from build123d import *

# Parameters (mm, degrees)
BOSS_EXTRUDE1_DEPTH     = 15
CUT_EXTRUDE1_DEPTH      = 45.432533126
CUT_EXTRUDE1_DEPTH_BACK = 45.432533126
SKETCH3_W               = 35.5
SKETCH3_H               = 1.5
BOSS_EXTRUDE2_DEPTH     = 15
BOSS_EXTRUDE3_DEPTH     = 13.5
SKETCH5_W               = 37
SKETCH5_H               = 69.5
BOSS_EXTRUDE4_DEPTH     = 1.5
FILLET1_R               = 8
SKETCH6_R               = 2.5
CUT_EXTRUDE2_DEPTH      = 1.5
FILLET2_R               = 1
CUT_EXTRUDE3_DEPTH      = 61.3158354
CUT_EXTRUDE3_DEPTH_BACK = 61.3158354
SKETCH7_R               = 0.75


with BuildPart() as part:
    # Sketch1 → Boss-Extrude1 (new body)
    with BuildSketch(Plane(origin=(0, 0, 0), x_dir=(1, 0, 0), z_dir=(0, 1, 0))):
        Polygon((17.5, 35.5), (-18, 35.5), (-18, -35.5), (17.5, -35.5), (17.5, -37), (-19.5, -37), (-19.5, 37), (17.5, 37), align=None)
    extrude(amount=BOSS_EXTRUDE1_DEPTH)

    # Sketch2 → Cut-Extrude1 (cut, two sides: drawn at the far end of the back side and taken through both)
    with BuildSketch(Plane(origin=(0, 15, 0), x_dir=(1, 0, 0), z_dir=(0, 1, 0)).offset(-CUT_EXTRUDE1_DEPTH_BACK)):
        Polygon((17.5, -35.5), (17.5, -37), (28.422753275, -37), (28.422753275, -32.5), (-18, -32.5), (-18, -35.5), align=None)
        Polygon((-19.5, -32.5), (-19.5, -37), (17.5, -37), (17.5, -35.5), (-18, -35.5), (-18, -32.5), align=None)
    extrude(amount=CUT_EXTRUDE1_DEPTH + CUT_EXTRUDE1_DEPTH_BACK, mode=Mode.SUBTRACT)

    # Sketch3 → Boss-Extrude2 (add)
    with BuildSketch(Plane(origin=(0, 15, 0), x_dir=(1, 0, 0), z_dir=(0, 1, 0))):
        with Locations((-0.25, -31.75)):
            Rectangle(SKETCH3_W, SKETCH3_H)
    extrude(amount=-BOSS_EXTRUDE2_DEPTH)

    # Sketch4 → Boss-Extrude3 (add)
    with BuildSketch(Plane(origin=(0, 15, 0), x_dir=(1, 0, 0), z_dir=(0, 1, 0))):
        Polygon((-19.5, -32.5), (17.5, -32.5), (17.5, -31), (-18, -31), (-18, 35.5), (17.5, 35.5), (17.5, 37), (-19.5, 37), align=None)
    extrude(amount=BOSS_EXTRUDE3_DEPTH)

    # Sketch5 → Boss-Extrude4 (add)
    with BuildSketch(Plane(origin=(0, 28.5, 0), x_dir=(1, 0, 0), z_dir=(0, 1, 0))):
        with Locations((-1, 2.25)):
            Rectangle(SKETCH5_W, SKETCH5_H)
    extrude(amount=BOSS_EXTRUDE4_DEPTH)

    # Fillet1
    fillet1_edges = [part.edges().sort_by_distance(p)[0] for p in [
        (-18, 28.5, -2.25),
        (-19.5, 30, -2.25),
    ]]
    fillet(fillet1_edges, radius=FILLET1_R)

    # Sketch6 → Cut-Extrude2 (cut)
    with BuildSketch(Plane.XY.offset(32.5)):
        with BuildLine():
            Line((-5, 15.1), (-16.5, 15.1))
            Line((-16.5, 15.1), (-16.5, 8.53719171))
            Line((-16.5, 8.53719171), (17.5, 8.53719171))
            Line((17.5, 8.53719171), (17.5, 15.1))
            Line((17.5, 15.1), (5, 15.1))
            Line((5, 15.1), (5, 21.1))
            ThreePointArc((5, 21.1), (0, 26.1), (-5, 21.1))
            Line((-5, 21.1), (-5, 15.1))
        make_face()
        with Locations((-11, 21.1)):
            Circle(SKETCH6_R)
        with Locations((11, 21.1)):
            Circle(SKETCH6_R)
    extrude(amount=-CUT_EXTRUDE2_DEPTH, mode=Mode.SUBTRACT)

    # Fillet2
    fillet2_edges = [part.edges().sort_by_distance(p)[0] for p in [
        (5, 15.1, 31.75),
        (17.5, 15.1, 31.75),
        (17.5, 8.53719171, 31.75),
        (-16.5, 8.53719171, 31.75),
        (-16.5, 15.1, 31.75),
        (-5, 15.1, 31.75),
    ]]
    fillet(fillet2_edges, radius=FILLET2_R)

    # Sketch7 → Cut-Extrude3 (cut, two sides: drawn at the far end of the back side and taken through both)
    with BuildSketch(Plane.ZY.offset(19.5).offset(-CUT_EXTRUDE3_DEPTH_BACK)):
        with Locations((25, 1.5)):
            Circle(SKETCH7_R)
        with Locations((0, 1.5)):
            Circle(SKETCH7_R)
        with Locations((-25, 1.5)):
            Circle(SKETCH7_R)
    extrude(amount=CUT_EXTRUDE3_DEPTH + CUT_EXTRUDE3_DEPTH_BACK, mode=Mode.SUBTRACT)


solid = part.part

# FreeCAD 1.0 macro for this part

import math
import FreeCAD as App
import Part
import Sketcher
Q = App.Units.Quantity


def edges_at(feature, points):
    """Names of the edges that pass closest to the given points."""
    edges = feature.Shape.Edges
    near = lambda p: min(range(len(edges)), key=lambda i: edges[i].distToShape(Part.Vertex(*p))[0])
    return sorted({f"Edge{near(p) + 1}" for p in points})

doc = App.newDocument("Part")
params = doc.addObject("Spreadsheet::Sheet", "Params")
for row, (alias, value) in enumerate([
    ("sketch1_width", "37 mm"),
    ("sketch1_height", "74 mm"),
    ("sketch1_height2", "71 mm"),
    ("sketch1_width2", "35.5 mm"),
    ("pad1_length", "15 mm"),
    ("sketch2_height", "4.5 mm"),
    ("sketch3_width", "35.5 mm"),
    ("sketch3_height", "1.5 mm"),
    ("pad2_length", "15 mm"),
    ("sketch4_width", "37 mm"),
    ("sketch4_width2", "35.5 mm"),
    ("sketch4_height", "1.5 mm"),
    ("sketch4_height2", "66.5 mm"),
    ("pad3_length", "13.5 mm"),
    ("sketch5_width", "37 mm"),
    ("sketch5_height", "69.5 mm"),
    ("pad4_length", "1.5 mm"),
    ("fillet_radius", "8 mm"),
    ("sketch6_diameter", "5 mm"),
    ("sketch6_radius", "5 mm"),
    ("sketch6_width", "34 mm"),
    ("sketch6_height", "6 mm"),
    ("sketch6_width2", "11.5 mm"),
    ("pocket2_length", "1.5 mm"),
    ("fillet2_radius", "1 mm"),
    ("sketch7_diameter", "1.5 mm"),
], start=1):
    params.set(f"A{row}", alias)
    params.set(f"B{row}", "=" + value)
    params.setAlias(f"B{row}", alias)

body = doc.addObject("PartDesign::Body", "Body")

# Sketch on XZ plane
sketch1 = doc.addObject("Sketcher::SketchObject", "Sketch")
body.addObject(sketch1)
sketch1.AttachmentSupport = (doc.XZ_Plane, [""])
sketch1.MapMode = "FlatFace"
sketch1.addGeometry(Part.LineSegment(App.Vector(-18, -35.5, 0), App.Vector(17.5, -35.5, 0)), False)
sketch1.addGeometry(Part.LineSegment(App.Vector(17.5, -35.5, 0), App.Vector(17.5, -37, 0)), False)
sketch1.addGeometry(Part.LineSegment(App.Vector(17.5, -37, 0), App.Vector(-19.5, -37, 0)), False)
sketch1.addGeometry(Part.LineSegment(App.Vector(-19.5, -37, 0), App.Vector(-19.5, 37, 0)), False)
sketch1.addGeometry(Part.LineSegment(App.Vector(-19.5, 37, 0), App.Vector(17.5, 37, 0)), False)
sketch1.addGeometry(Part.LineSegment(App.Vector(17.5, 37, 0), App.Vector(17.5, 35.5, 0)), False)
sketch1.addGeometry(Part.LineSegment(App.Vector(17.5, 35.5, 0), App.Vector(-18, 35.5, 0)), False)
sketch1.addGeometry(Part.LineSegment(App.Vector(-18, 35.5, 0), App.Vector(-18, -35.5, 0)), False)
sketch1.addConstraint(Sketcher.Constraint("Coincident", 0, 2, 1, 1))
sketch1.addConstraint(Sketcher.Constraint("Coincident", 1, 2, 2, 1))
sketch1.addConstraint(Sketcher.Constraint("Coincident", 2, 2, 3, 1))
sketch1.addConstraint(Sketcher.Constraint("Coincident", 3, 2, 4, 1))
sketch1.addConstraint(Sketcher.Constraint("Coincident", 4, 2, 5, 1))
sketch1.addConstraint(Sketcher.Constraint("Coincident", 5, 2, 6, 1))
sketch1.addConstraint(Sketcher.Constraint("Coincident", 6, 2, 7, 1))
sketch1.addConstraint(Sketcher.Constraint("Coincident", 7, 2, 0, 1))
sketch1.addConstraint(Sketcher.Constraint("Horizontal", 0))
sketch1.addConstraint(Sketcher.Constraint("Vertical", 1))
sketch1.addConstraint(Sketcher.Constraint("Horizontal", 2))
sketch1.addConstraint(Sketcher.Constraint("Vertical", 3))
sketch1.addConstraint(Sketcher.Constraint("Horizontal", 4))
sketch1.addConstraint(Sketcher.Constraint("Vertical", 5))
sketch1.addConstraint(Sketcher.Constraint("Horizontal", 6))
sketch1.addConstraint(Sketcher.Constraint("Vertical", 7))
sketch1.addConstraint(Sketcher.Constraint("Symmetric", 1, 2, 4, 2, -1))
sketch1.addConstraint(Sketcher.Constraint("Equal", 1, 5))
sketch1.addConstraint(Sketcher.Constraint("DistanceX", 2, 2, 2, 1, Q("37 mm")))
sketch1.addConstraint(Sketcher.Constraint("DistanceY", 3, 1, 3, 2, Q("74 mm")))
sketch1.addConstraint(Sketcher.Constraint("DistanceY", 7, 2, 7, 1, Q("71 mm")))
sketch1.addConstraint(Sketcher.Constraint("DistanceX", 0, 1, 0, 2, Q("35.5 mm")))
sketch1.addConstraint(Sketcher.Constraint("DistanceX", 6, 2, -1, 1, Q("18 mm")))
sketch1.setExpression("Constraints[18]", "Params.sketch1_width")
sketch1.setExpression("Constraints[19]", "Params.sketch1_height")
sketch1.setExpression("Constraints[20]", "Params.sketch1_height2")
sketch1.setExpression("Constraints[21]", "Params.sketch1_width2")
pad1 = doc.addObject("PartDesign::Pad", "Pad")
body.addObject(pad1)
pad1.Profile = sketch1
pad1.setExpression("Length", "Params.pad1_length")
pad1.Reversed = True

# Sketch on XZ plane
sketch2 = doc.addObject("Sketcher::SketchObject", "Sketch001")
body.addObject(sketch2)
sketch2.AttachmentSupport = (doc.XZ_Plane, [""])
sketch2.MapMode = "FlatFace"
sketch2.AttachmentOffset = App.Placement(App.Vector(0, 0, -15), App.Rotation())
sketch2.addGeometry(Part.LineSegment(App.Vector(28.4, 37, 0), App.Vector(28.4, 32.5, 0)), False)
sketch2.addGeometry(Part.LineSegment(App.Vector(28.4, 32.5, 0), App.Vector(-19.5, 32.5, 0)), False)
sketch2.addGeometry(Part.LineSegment(App.Vector(-19.5, 32.5, 0), App.Vector(-19.5, 37, 0)), False)
sketch2.addGeometry(Part.LineSegment(App.Vector(-19.5, 37, 0), App.Vector(28.4, 37, 0)), False)
sketch2.addConstraint(Sketcher.Constraint("Coincident", 0, 2, 1, 1))
sketch2.addConstraint(Sketcher.Constraint("Coincident", 1, 2, 2, 1))
sketch2.addConstraint(Sketcher.Constraint("Coincident", 2, 2, 3, 1))
sketch2.addConstraint(Sketcher.Constraint("Coincident", 3, 2, 0, 1))
sketch2.addConstraint(Sketcher.Constraint("Vertical", 0))
sketch2.addConstraint(Sketcher.Constraint("Horizontal", 1))
sketch2.addConstraint(Sketcher.Constraint("Vertical", 2))
sketch2.addConstraint(Sketcher.Constraint("Horizontal", 3))
sketch2.addConstraint(Sketcher.Constraint("DistanceY", 0, 2, 0, 1, Q("4.5 mm")))
sketch2.addConstraint(Sketcher.Constraint("DistanceY", -1, 1, 2, 2, Q("37 mm")))
sketch2.addConstraint(Sketcher.Constraint("DistanceX", 1, 2, -1, 1, Q("19.5 mm")))
sketch2.addConstraint(Sketcher.Constraint("DistanceX", 1, 2, 1, 1, Q("47.922753 mm")))
sketch2.setExpression("Constraints[8]", "Params.sketch2_height")
pocket1 = doc.addObject("PartDesign::Pocket", "Pocket")
body.addObject(pocket1)
pocket1.Profile = sketch2
pocket1.Type = "ThroughAll"
pocket1.Midplane = True

# Sketch on XZ plane
sketch3 = doc.addObject("Sketcher::SketchObject", "Sketch002")
body.addObject(sketch3)
sketch3.AttachmentSupport = (doc.XZ_Plane, [""])
sketch3.MapMode = "FlatFace"
sketch3.AttachmentOffset = App.Placement(App.Vector(0, 0, -15), App.Rotation())
sketch3.addGeometry(Part.LineSegment(App.Vector(-18, 31, 0), App.Vector(-18, 32.5, 0)), False)
sketch3.addGeometry(Part.LineSegment(App.Vector(-18, 32.5, 0), App.Vector(17.5, 32.5, 0)), False)
sketch3.addGeometry(Part.LineSegment(App.Vector(17.5, 32.5, 0), App.Vector(17.5, 31, 0)), False)
sketch3.addGeometry(Part.LineSegment(App.Vector(17.5, 31, 0), App.Vector(-18, 31, 0)), False)
sketch3.addConstraint(Sketcher.Constraint("Coincident", 0, 2, 1, 1))
sketch3.addConstraint(Sketcher.Constraint("Coincident", 1, 2, 2, 1))
sketch3.addConstraint(Sketcher.Constraint("Coincident", 2, 2, 3, 1))
sketch3.addConstraint(Sketcher.Constraint("Coincident", 3, 2, 0, 1))
sketch3.addConstraint(Sketcher.Constraint("Vertical", 0))
sketch3.addConstraint(Sketcher.Constraint("Horizontal", 1))
sketch3.addConstraint(Sketcher.Constraint("Vertical", 2))
sketch3.addConstraint(Sketcher.Constraint("Horizontal", 3))
sketch3.addConstraint(Sketcher.Constraint("DistanceX", 1, 1, 1, 2, Q("35.5 mm")))
sketch3.addConstraint(Sketcher.Constraint("DistanceY", 0, 1, 0, 2, Q("1.5 mm")))
sketch3.addConstraint(Sketcher.Constraint("DistanceX", 0, 2, -1, 1, Q("18 mm")))
sketch3.addConstraint(Sketcher.Constraint("DistanceY", -1, 1, 2, 2, Q("31 mm")))
sketch3.setExpression("Constraints[8]", "Params.sketch3_width")
sketch3.setExpression("Constraints[9]", "Params.sketch3_height")
pad2 = doc.addObject("PartDesign::Pad", "Pad001")
body.addObject(pad2)
pad2.Profile = sketch3
pad2.setExpression("Length", "Params.pad2_length")

# Sketch on XZ plane
sketch4 = doc.addObject("Sketcher::SketchObject", "Sketch003")
body.addObject(sketch4)
sketch4.AttachmentSupport = (doc.XZ_Plane, [""])
sketch4.MapMode = "FlatFace"
sketch4.AttachmentOffset = App.Placement(App.Vector(0, 0, -15), App.Rotation())
sketch4.addGeometry(Part.LineSegment(App.Vector(-19.5, 32.5, 0), App.Vector(17.5, 32.5, 0)), False)
sketch4.addGeometry(Part.LineSegment(App.Vector(17.5, 32.5, 0), App.Vector(17.5, 31, 0)), False)
sketch4.addGeometry(Part.LineSegment(App.Vector(17.5, 31, 0), App.Vector(-18, 31, 0)), False)
sketch4.addGeometry(Part.LineSegment(App.Vector(-18, 31, 0), App.Vector(-18, -35.5, 0)), False)
sketch4.addGeometry(Part.LineSegment(App.Vector(-18, -35.5, 0), App.Vector(17.5, -35.5, 0)), False)
sketch4.addGeometry(Part.LineSegment(App.Vector(17.5, -35.5, 0), App.Vector(17.5, -37, 0)), False)
sketch4.addGeometry(Part.LineSegment(App.Vector(17.5, -37, 0), App.Vector(-19.5, -37, 0)), False)
sketch4.addGeometry(Part.LineSegment(App.Vector(-19.5, -37, 0), App.Vector(-19.5, 32.5, 0)), False)
sketch4.addConstraint(Sketcher.Constraint("Coincident", 0, 2, 1, 1))
sketch4.addConstraint(Sketcher.Constraint("Coincident", 1, 2, 2, 1))
sketch4.addConstraint(Sketcher.Constraint("Coincident", 2, 2, 3, 1))
sketch4.addConstraint(Sketcher.Constraint("Coincident", 3, 2, 4, 1))
sketch4.addConstraint(Sketcher.Constraint("Coincident", 4, 2, 5, 1))
sketch4.addConstraint(Sketcher.Constraint("Coincident", 5, 2, 6, 1))
sketch4.addConstraint(Sketcher.Constraint("Coincident", 6, 2, 7, 1))
sketch4.addConstraint(Sketcher.Constraint("Coincident", 7, 2, 0, 1))
sketch4.addConstraint(Sketcher.Constraint("Horizontal", 0))
sketch4.addConstraint(Sketcher.Constraint("Vertical", 1))
sketch4.addConstraint(Sketcher.Constraint("Horizontal", 2))
sketch4.addConstraint(Sketcher.Constraint("Vertical", 3))
sketch4.addConstraint(Sketcher.Constraint("Horizontal", 4))
sketch4.addConstraint(Sketcher.Constraint("Vertical", 5))
sketch4.addConstraint(Sketcher.Constraint("Horizontal", 6))
sketch4.addConstraint(Sketcher.Constraint("Vertical", 7))
sketch4.addConstraint(Sketcher.Constraint("Vertical", 1, 2, 4, 2))
sketch4.addConstraint(Sketcher.Constraint("Equal", 1, 5))
sketch4.addConstraint(Sketcher.Constraint("DistanceX", 0, 1, 0, 2, Q("37 mm")))
sketch4.addConstraint(Sketcher.Constraint("DistanceX", 2, 2, 2, 1, Q("35.5 mm")))
sketch4.addConstraint(Sketcher.Constraint("DistanceY", 1, 2, 1, 1, Q("1.5 mm")))
sketch4.addConstraint(Sketcher.Constraint("DistanceY", 3, 2, 3, 1, Q("66.5 mm")))
sketch4.addConstraint(Sketcher.Constraint("DistanceY", -1, 1, 1, 2, Q("31 mm")))
sketch4.addConstraint(Sketcher.Constraint("DistanceX", 2, 2, -1, 1, Q("18 mm")))
sketch4.setExpression("Constraints[18]", "Params.sketch4_width")
sketch4.setExpression("Constraints[19]", "Params.sketch4_width2")
sketch4.setExpression("Constraints[20]", "Params.sketch4_height")
sketch4.setExpression("Constraints[21]", "Params.sketch4_height2")
pad3 = doc.addObject("PartDesign::Pad", "Pad002")
body.addObject(pad3)
pad3.Profile = sketch4
pad3.setExpression("Length", "Params.pad3_length")
pad3.Reversed = True

# Sketch on XZ plane
sketch5 = doc.addObject("Sketcher::SketchObject", "Sketch004")
body.addObject(sketch5)
sketch5.AttachmentSupport = (doc.XZ_Plane, [""])
sketch5.MapMode = "FlatFace"
sketch5.AttachmentOffset = App.Placement(App.Vector(0, 0, -28.5), App.Rotation())
sketch5.addGeometry(Part.LineSegment(App.Vector(-20, -37, 0), App.Vector(-20, 32, 0)), False)
sketch5.addGeometry(Part.LineSegment(App.Vector(-20, 32, 0), App.Vector(18, 32, 0)), False)
sketch5.addGeometry(Part.LineSegment(App.Vector(18, 32, 0), App.Vector(18, -37, 0)), False)
sketch5.addGeometry(Part.LineSegment(App.Vector(18, -37, 0), App.Vector(-20, -37, 0)), False)
sketch5.addConstraint(Sketcher.Constraint("Coincident", 0, 2, 1, 1))
sketch5.addConstraint(Sketcher.Constraint("Coincident", 1, 2, 2, 1))
sketch5.addConstraint(Sketcher.Constraint("Coincident", 2, 2, 3, 1))
sketch5.addConstraint(Sketcher.Constraint("Coincident", 3, 2, 0, 1))
sketch5.addConstraint(Sketcher.Constraint("Vertical", 0))
sketch5.addConstraint(Sketcher.Constraint("Horizontal", 1))
sketch5.addConstraint(Sketcher.Constraint("Vertical", 2))
sketch5.addConstraint(Sketcher.Constraint("Horizontal", 3))
sketch5.addConstraint(Sketcher.Constraint("DistanceX", 1, 1, 1, 2, Q("37 mm")))
sketch5.addConstraint(Sketcher.Constraint("DistanceY", 0, 1, 0, 2, Q("69.5 mm")))
sketch5.addConstraint(Sketcher.Constraint("DistanceY", 2, 2, -1, 1, Q("37 mm")))
sketch5.addConstraint(Sketcher.Constraint("DistanceX", 0, 2, -1, 1, Q("19.5 mm")))
sketch5.setExpression("Constraints[8]", "Params.sketch5_width")
sketch5.setExpression("Constraints[9]", "Params.sketch5_height")
pad4 = doc.addObject("PartDesign::Pad", "Pad003")
body.addObject(pad4)
pad4.Profile = sketch5
pad4.setExpression("Length", "Params.pad4_length")
pad4.Reversed = True
doc.recompute()

fillet = doc.addObject("PartDesign::Fillet", "Fillet")
body.addObject(fillet)
fillet.Base = (pad4, edges_at(pad4, [(-18, 28.5, -2.25), (-19.5, 30, -2.25)]))
fillet.setExpression("Radius", "Params.fillet_radius")

# Sketch on XY plane
sketch6 = doc.addObject("Sketcher::SketchObject", "Sketch005")
body.addObject(sketch6)
sketch6.AttachmentSupport = (doc.XY_Plane, [""])
sketch6.MapMode = "FlatFace"
sketch6.AttachmentOffset = App.Placement(App.Vector(0, 0, 32.5), App.Rotation())
sketch6.addGeometry(Part.LineSegment(App.Vector(-5, 15.1, 0), App.Vector(-16.5, 15.1, 0)), False)
sketch6.addGeometry(Part.LineSegment(App.Vector(-16.5, 15.1, 0), App.Vector(-16.5, 8.5, 0)), False)
sketch6.addGeometry(Part.LineSegment(App.Vector(-16.5, 8.5, 0), App.Vector(17.5, 8.5, 0)), False)
sketch6.addGeometry(Part.LineSegment(App.Vector(17.5, 8.5, 0), App.Vector(17.5, 15.1, 0)), False)
sketch6.addGeometry(Part.LineSegment(App.Vector(17.5, 15.1, 0), App.Vector(5, 15.1, 0)), False)
sketch6.addGeometry(Part.LineSegment(App.Vector(5, 15.1, 0), App.Vector(5, 21.1, 0)), False)
sketch6.addGeometry(Part.ArcOfCircle(Part.Circle(App.Vector(0, 21.1, 0), App.Vector(0, 0, 1), 5), math.radians(0), math.radians(180)), False)
sketch6.addGeometry(Part.LineSegment(App.Vector(-5, 21.1, 0), App.Vector(-5, 15.1, 0)), False)
sketch6.addGeometry(Part.Circle(App.Vector(-11, 21.1, 0), App.Vector(0, 0, 1), 2.5), False)
sketch6.addGeometry(Part.Circle(App.Vector(11, 21.1, 0), App.Vector(0, 0, 1), 2.5), False)
sketch6.addConstraint(Sketcher.Constraint("Coincident", 0, 2, 1, 1))
sketch6.addConstraint(Sketcher.Constraint("Coincident", 1, 2, 2, 1))
sketch6.addConstraint(Sketcher.Constraint("Coincident", 2, 2, 3, 1))
sketch6.addConstraint(Sketcher.Constraint("Coincident", 3, 2, 4, 1))
sketch6.addConstraint(Sketcher.Constraint("Coincident", 4, 2, 5, 1))
sketch6.addConstraint(Sketcher.Constraint("Tangent", 5, 2, 6, 1))
sketch6.addConstraint(Sketcher.Constraint("Tangent", 6, 2, 7, 1))
sketch6.addConstraint(Sketcher.Constraint("Coincident", 7, 2, 0, 1))
sketch6.addConstraint(Sketcher.Constraint("Horizontal", 0))
sketch6.addConstraint(Sketcher.Constraint("Vertical", 1))
sketch6.addConstraint(Sketcher.Constraint("Horizontal", 2))
sketch6.addConstraint(Sketcher.Constraint("Vertical", 3))
sketch6.addConstraint(Sketcher.Constraint("Horizontal", 4))
sketch6.addConstraint(Sketcher.Constraint("Vertical", 5))
sketch6.addConstraint(Sketcher.Constraint("Vertical", 7))
sketch6.addConstraint(Sketcher.Constraint("Equal", 8, 9))
sketch6.addConstraint(Sketcher.Constraint("Symmetric", 8, 3, 9, 3, -2))
sketch6.addConstraint(Sketcher.Constraint("Symmetric", 4, 2, 7, 2, -2))
sketch6.addConstraint(Sketcher.Constraint("Horizontal", 6, 3, 8, 3))
sketch6.addConstraint(Sketcher.Constraint("Diameter", 8, Q("5 mm")))
sketch6.addConstraint(Sketcher.Constraint("Radius", 6, Q("5 mm")))
sketch6.addConstraint(Sketcher.Constraint("DistanceX", 2, 1, 2, 2, Q("34 mm")))
sketch6.addConstraint(Sketcher.Constraint("DistanceY", 5, 1, 5, 2, Q("6 mm")))
sketch6.addConstraint(Sketcher.Constraint("DistanceX", 0, 2, 0, 1, Q("11.5 mm")))
sketch6.addConstraint(Sketcher.Constraint("DistanceX", 8, 3, -1, 1, Q("11 mm")))
sketch6.addConstraint(Sketcher.Constraint("DistanceY", -1, 1, 6, 3, Q("21.1 mm")))
sketch6.addConstraint(Sketcher.Constraint("DistanceY", 1, 2, 1, 1, Q("6.562808 mm")))
sketch6.setExpression("Constraints[19]", "Params.sketch6_diameter")
sketch6.setExpression("Constraints[20]", "Params.sketch6_radius")
sketch6.setExpression("Constraints[21]", "Params.sketch6_width")
sketch6.setExpression("Constraints[22]", "Params.sketch6_height")
sketch6.setExpression("Constraints[23]", "Params.sketch6_width2")
pocket2 = doc.addObject("PartDesign::Pocket", "Pocket001")
body.addObject(pocket2)
pocket2.Profile = sketch6
pocket2.setExpression("Length", "Params.pocket2_length")
doc.recompute()

fillet2 = doc.addObject("PartDesign::Fillet", "Fillet001")
body.addObject(fillet2)
fillet2.Base = (pocket2, edges_at(pocket2, [
    (5, 15.1, 31.75),
    (17.5, 15.1, 31.75),
    (17.5, 8.537, 31.75),
    (-16.5, 8.537, 31.75),
    (-16.5, 15.1, 31.75),
    (-5, 15.1, 31.75),
]))
fillet2.setExpression("Radius", "Params.fillet2_radius")

# Sketch on YZ plane
sketch7 = doc.addObject("Sketcher::SketchObject", "Sketch006")
body.addObject(sketch7)
sketch7.AttachmentSupport = (doc.YZ_Plane, [""])
sketch7.MapMode = "FlatFace"
sketch7.AttachmentOffset = App.Placement(App.Vector(0, 0, -19.5), App.Rotation())
sketch7.addGeometry(Part.Circle(App.Vector(1.5, 25, 0), App.Vector(0, 0, 1), 0.8), False)
sketch7.addGeometry(Part.Circle(App.Vector(1.5, 0, 0), App.Vector(0, 0, 1), 0.8), False)
sketch7.addGeometry(Part.Circle(App.Vector(1.5, -25, 0), App.Vector(0, 0, 1), 0.8), False)
sketch7.addConstraint(Sketcher.Constraint("Equal", 0, 1))
sketch7.addConstraint(Sketcher.Constraint("Equal", 1, 2))
sketch7.addConstraint(Sketcher.Constraint("Symmetric", 0, 3, 2, 3, -1))
sketch7.addConstraint(Sketcher.Constraint("PointOnObject", 1, 3, -1))
sketch7.addConstraint(Sketcher.Constraint("Vertical", 0, 3, 1, 3))
sketch7.addConstraint(Sketcher.Constraint("Diameter", 0, Q("1.5 mm")))
sketch7.addConstraint(Sketcher.Constraint("DistanceY", -1, 1, 0, 3, Q("25 mm")))
sketch7.addConstraint(Sketcher.Constraint("DistanceX", -1, 1, 0, 3, Q("1.5 mm")))
sketch7.setExpression("Constraints[5]", "Params.sketch7_diameter")
pocket3 = doc.addObject("PartDesign::Pocket", "Pocket002")
body.addObject(pocket3)
pocket3.Profile = sketch7
pocket3.Type = "ThroughAll"
pocket3.Midplane = True

doc.recompute()
